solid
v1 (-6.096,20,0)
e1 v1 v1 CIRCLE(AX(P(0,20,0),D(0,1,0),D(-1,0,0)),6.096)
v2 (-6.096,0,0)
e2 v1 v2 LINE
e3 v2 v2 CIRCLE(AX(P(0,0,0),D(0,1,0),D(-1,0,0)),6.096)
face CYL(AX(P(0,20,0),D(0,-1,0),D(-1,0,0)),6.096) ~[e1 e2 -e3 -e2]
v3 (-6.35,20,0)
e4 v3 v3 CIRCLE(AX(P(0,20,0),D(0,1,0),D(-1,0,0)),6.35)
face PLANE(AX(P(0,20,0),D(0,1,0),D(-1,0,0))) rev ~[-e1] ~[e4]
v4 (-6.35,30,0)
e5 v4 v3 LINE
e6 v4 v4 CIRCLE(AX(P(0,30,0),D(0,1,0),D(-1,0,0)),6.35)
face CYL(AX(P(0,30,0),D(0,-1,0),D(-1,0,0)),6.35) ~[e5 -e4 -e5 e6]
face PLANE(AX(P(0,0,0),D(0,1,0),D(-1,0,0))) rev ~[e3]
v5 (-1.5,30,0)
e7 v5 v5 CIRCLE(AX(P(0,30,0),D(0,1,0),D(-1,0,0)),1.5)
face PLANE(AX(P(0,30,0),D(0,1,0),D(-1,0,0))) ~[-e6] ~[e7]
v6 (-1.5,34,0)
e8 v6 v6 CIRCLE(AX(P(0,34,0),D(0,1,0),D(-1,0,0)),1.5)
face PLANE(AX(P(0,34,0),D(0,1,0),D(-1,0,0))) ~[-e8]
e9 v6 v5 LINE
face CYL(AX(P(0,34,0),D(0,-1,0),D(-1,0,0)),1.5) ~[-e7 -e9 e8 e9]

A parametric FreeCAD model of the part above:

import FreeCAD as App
import Part
import Sketcher
Q = App.Units.Quantity


def add_polygon(sketch, points):
    """Adds a closed chain of lines whose ends are joined by coincident constraints."""
    first, n = sketch.GeometryCount, len(points)
    for a, b in zip(points, points[1:] + points[:1]):
        sketch.addGeometry(Part.LineSegment(App.Vector(*a, 0), App.Vector(*b, 0)), False)
    for i in range(n):
        sketch.addConstraint(Sketcher.Constraint("Coincident", first + i, 2, first + (i + 1) % n, 1))

doc = App.newDocument("Part")
body = doc.addObject("PartDesign::Body", "Body")

sketch1 = body.newObject("Sketcher::SketchObject", "Sketch")
sketch1.AttachmentSupport = (doc.getObject("XY_Plane"), [""])
sketch1.MapMode = "FlatFace"
add_polygon(sketch1, [(0, 0), (0, 34), (-1.5, 34), (-1.5, 30), (-6.35, 30), (-6.35, 20), (-6.096, 20), (-6.096, 0)])
sketch1.addConstraint([
    Sketcher.Constraint("Vertical", 0),
    Sketcher.Constraint("Horizontal", 1),
    Sketcher.Constraint("Vertical", 2),
    Sketcher.Constraint("Horizontal", 3),
    Sketcher.Constraint("Vertical", 4),
    Sketcher.Constraint("Horizontal", 5),
    Sketcher.Constraint("Vertical", 6),
    Sketcher.Constraint("Horizontal", 7),
    Sketcher.Constraint("Coincident", 7, 2, -1, 1),
    Sketcher.Constraint("DistanceY", 2, 2, 2, 1, Q("4 mm")),
    Sketcher.Constraint("DistanceY", 4, 2, 4, 1, Q("10 mm")),
    Sketcher.Constraint("DistanceY", 6, 2, 6, 1, Q("20 mm")),
    Sketcher.Constraint("DistanceX", 1, 2, 1, 1, Q("1.5 mm")),
    Sketcher.Constraint("DistanceX", 7, 1, 7, 2, Q("6.096 mm")),
    Sketcher.Constraint("DistanceX", 3, 2, -1, 1, Q("6.35 mm")),
])
revolution = body.newObject("PartDesign::Revolution", "Revolution")
revolution.Profile = sketch1
revolution.ReferenceAxis = (sketch1, ["V_Axis"])
revolution.Angle = 360

doc.recompute()
